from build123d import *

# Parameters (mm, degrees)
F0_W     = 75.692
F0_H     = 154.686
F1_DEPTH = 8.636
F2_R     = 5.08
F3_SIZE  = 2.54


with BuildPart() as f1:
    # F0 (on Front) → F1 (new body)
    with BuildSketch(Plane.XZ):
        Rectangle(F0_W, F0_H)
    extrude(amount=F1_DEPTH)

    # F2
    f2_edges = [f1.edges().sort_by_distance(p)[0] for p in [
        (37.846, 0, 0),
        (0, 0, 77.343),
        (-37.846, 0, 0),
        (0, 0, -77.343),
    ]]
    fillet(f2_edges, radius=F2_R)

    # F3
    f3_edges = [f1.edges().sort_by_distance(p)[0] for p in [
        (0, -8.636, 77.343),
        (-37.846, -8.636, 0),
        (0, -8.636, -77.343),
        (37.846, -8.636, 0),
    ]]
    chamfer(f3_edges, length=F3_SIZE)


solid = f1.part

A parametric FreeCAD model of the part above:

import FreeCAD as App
import Part
import Sketcher
Q = App.Units.Quantity


def edges_at(feature, points):
    """Names of the edges that pass closest to the given points."""
    edges = feature.Shape.Edges
    near = lambda p: min(range(len(edges)), key=lambda i: edges[i].distToShape(Part.Vertex(*p))[0])
    return sorted({f"Edge{near(p) + 1}" for p in points})

doc = App.newDocument("Part")
body = doc.addObject("PartDesign::Body", "Body")

# Sketch on XZ plane
sketch1 = body.newObject("Sketcher::SketchObject", "Sketch")
sketch1.AttachmentSupport = (doc.getObject("XZ_Plane"), [""])
sketch1.MapMode = "FlatFace"
sketch1.addGeometry([
    Part.LineSegment(App.Vector(-38, 77, 0), App.Vector(-38, -77, 0)),
    Part.LineSegment(App.Vector(-38, -77, 0), App.Vector(38, -77, 0)),
    Part.LineSegment(App.Vector(38, -77, 0), App.Vector(38, 77, 0)),
    Part.LineSegment(App.Vector(38, 77, 0), App.Vector(-38, 77, 0)),
], False)
sketch1.addConstraint([
    Sketcher.Constraint("Coincident", 0, 2, 1, 1),
    Sketcher.Constraint("Coincident", 1, 2, 2, 1),
    Sketcher.Constraint("Coincident", 2, 2, 3, 1),
    Sketcher.Constraint("Coincident", 3, 2, 0, 1),
    Sketcher.Constraint("Vertical", 0),
    Sketcher.Constraint("Horizontal", 1),
    Sketcher.Constraint("Vertical", 2),
    Sketcher.Constraint("Horizontal", 3),
    Sketcher.Constraint("Symmetric", 0, 2, 2, 2, -1, 1),
    Sketcher.Constraint("DistanceX", 1, 1, 1, 2, Q("2.98 in")),
    Sketcher.Constraint("DistanceY", 0, 2, 0, 1, Q("6.09 in")),
])
pad1 = body.newObject("PartDesign::Pad", "Pad")
pad1.Profile = sketch1
pad1.Length = Q("0.34 in")
doc.recompute()

fillet = body.newObject("PartDesign::Fillet", "Fillet")
fillet.Base = (pad1, edges_at(pad1, [
    (37.846, 0, 0),
    (0, 0, 77.343),
    (-37.846, 0, 0),
    (0, 0, -77.343),
]))
fillet.Radius = Q("0.2 in")
doc.recompute()

chamfer = body.newObject("PartDesign::Chamfer", "Chamfer")
chamfer.Base = (fillet, edges_at(fillet, [
    (0, -8.636, 77.343),
    (-37.846, -8.636, 0),
    (0, -8.636, -77.343),
    (37.846, -8.636, 0),
]))
chamfer.Size = Q("0.1 in")

doc.recompute()
